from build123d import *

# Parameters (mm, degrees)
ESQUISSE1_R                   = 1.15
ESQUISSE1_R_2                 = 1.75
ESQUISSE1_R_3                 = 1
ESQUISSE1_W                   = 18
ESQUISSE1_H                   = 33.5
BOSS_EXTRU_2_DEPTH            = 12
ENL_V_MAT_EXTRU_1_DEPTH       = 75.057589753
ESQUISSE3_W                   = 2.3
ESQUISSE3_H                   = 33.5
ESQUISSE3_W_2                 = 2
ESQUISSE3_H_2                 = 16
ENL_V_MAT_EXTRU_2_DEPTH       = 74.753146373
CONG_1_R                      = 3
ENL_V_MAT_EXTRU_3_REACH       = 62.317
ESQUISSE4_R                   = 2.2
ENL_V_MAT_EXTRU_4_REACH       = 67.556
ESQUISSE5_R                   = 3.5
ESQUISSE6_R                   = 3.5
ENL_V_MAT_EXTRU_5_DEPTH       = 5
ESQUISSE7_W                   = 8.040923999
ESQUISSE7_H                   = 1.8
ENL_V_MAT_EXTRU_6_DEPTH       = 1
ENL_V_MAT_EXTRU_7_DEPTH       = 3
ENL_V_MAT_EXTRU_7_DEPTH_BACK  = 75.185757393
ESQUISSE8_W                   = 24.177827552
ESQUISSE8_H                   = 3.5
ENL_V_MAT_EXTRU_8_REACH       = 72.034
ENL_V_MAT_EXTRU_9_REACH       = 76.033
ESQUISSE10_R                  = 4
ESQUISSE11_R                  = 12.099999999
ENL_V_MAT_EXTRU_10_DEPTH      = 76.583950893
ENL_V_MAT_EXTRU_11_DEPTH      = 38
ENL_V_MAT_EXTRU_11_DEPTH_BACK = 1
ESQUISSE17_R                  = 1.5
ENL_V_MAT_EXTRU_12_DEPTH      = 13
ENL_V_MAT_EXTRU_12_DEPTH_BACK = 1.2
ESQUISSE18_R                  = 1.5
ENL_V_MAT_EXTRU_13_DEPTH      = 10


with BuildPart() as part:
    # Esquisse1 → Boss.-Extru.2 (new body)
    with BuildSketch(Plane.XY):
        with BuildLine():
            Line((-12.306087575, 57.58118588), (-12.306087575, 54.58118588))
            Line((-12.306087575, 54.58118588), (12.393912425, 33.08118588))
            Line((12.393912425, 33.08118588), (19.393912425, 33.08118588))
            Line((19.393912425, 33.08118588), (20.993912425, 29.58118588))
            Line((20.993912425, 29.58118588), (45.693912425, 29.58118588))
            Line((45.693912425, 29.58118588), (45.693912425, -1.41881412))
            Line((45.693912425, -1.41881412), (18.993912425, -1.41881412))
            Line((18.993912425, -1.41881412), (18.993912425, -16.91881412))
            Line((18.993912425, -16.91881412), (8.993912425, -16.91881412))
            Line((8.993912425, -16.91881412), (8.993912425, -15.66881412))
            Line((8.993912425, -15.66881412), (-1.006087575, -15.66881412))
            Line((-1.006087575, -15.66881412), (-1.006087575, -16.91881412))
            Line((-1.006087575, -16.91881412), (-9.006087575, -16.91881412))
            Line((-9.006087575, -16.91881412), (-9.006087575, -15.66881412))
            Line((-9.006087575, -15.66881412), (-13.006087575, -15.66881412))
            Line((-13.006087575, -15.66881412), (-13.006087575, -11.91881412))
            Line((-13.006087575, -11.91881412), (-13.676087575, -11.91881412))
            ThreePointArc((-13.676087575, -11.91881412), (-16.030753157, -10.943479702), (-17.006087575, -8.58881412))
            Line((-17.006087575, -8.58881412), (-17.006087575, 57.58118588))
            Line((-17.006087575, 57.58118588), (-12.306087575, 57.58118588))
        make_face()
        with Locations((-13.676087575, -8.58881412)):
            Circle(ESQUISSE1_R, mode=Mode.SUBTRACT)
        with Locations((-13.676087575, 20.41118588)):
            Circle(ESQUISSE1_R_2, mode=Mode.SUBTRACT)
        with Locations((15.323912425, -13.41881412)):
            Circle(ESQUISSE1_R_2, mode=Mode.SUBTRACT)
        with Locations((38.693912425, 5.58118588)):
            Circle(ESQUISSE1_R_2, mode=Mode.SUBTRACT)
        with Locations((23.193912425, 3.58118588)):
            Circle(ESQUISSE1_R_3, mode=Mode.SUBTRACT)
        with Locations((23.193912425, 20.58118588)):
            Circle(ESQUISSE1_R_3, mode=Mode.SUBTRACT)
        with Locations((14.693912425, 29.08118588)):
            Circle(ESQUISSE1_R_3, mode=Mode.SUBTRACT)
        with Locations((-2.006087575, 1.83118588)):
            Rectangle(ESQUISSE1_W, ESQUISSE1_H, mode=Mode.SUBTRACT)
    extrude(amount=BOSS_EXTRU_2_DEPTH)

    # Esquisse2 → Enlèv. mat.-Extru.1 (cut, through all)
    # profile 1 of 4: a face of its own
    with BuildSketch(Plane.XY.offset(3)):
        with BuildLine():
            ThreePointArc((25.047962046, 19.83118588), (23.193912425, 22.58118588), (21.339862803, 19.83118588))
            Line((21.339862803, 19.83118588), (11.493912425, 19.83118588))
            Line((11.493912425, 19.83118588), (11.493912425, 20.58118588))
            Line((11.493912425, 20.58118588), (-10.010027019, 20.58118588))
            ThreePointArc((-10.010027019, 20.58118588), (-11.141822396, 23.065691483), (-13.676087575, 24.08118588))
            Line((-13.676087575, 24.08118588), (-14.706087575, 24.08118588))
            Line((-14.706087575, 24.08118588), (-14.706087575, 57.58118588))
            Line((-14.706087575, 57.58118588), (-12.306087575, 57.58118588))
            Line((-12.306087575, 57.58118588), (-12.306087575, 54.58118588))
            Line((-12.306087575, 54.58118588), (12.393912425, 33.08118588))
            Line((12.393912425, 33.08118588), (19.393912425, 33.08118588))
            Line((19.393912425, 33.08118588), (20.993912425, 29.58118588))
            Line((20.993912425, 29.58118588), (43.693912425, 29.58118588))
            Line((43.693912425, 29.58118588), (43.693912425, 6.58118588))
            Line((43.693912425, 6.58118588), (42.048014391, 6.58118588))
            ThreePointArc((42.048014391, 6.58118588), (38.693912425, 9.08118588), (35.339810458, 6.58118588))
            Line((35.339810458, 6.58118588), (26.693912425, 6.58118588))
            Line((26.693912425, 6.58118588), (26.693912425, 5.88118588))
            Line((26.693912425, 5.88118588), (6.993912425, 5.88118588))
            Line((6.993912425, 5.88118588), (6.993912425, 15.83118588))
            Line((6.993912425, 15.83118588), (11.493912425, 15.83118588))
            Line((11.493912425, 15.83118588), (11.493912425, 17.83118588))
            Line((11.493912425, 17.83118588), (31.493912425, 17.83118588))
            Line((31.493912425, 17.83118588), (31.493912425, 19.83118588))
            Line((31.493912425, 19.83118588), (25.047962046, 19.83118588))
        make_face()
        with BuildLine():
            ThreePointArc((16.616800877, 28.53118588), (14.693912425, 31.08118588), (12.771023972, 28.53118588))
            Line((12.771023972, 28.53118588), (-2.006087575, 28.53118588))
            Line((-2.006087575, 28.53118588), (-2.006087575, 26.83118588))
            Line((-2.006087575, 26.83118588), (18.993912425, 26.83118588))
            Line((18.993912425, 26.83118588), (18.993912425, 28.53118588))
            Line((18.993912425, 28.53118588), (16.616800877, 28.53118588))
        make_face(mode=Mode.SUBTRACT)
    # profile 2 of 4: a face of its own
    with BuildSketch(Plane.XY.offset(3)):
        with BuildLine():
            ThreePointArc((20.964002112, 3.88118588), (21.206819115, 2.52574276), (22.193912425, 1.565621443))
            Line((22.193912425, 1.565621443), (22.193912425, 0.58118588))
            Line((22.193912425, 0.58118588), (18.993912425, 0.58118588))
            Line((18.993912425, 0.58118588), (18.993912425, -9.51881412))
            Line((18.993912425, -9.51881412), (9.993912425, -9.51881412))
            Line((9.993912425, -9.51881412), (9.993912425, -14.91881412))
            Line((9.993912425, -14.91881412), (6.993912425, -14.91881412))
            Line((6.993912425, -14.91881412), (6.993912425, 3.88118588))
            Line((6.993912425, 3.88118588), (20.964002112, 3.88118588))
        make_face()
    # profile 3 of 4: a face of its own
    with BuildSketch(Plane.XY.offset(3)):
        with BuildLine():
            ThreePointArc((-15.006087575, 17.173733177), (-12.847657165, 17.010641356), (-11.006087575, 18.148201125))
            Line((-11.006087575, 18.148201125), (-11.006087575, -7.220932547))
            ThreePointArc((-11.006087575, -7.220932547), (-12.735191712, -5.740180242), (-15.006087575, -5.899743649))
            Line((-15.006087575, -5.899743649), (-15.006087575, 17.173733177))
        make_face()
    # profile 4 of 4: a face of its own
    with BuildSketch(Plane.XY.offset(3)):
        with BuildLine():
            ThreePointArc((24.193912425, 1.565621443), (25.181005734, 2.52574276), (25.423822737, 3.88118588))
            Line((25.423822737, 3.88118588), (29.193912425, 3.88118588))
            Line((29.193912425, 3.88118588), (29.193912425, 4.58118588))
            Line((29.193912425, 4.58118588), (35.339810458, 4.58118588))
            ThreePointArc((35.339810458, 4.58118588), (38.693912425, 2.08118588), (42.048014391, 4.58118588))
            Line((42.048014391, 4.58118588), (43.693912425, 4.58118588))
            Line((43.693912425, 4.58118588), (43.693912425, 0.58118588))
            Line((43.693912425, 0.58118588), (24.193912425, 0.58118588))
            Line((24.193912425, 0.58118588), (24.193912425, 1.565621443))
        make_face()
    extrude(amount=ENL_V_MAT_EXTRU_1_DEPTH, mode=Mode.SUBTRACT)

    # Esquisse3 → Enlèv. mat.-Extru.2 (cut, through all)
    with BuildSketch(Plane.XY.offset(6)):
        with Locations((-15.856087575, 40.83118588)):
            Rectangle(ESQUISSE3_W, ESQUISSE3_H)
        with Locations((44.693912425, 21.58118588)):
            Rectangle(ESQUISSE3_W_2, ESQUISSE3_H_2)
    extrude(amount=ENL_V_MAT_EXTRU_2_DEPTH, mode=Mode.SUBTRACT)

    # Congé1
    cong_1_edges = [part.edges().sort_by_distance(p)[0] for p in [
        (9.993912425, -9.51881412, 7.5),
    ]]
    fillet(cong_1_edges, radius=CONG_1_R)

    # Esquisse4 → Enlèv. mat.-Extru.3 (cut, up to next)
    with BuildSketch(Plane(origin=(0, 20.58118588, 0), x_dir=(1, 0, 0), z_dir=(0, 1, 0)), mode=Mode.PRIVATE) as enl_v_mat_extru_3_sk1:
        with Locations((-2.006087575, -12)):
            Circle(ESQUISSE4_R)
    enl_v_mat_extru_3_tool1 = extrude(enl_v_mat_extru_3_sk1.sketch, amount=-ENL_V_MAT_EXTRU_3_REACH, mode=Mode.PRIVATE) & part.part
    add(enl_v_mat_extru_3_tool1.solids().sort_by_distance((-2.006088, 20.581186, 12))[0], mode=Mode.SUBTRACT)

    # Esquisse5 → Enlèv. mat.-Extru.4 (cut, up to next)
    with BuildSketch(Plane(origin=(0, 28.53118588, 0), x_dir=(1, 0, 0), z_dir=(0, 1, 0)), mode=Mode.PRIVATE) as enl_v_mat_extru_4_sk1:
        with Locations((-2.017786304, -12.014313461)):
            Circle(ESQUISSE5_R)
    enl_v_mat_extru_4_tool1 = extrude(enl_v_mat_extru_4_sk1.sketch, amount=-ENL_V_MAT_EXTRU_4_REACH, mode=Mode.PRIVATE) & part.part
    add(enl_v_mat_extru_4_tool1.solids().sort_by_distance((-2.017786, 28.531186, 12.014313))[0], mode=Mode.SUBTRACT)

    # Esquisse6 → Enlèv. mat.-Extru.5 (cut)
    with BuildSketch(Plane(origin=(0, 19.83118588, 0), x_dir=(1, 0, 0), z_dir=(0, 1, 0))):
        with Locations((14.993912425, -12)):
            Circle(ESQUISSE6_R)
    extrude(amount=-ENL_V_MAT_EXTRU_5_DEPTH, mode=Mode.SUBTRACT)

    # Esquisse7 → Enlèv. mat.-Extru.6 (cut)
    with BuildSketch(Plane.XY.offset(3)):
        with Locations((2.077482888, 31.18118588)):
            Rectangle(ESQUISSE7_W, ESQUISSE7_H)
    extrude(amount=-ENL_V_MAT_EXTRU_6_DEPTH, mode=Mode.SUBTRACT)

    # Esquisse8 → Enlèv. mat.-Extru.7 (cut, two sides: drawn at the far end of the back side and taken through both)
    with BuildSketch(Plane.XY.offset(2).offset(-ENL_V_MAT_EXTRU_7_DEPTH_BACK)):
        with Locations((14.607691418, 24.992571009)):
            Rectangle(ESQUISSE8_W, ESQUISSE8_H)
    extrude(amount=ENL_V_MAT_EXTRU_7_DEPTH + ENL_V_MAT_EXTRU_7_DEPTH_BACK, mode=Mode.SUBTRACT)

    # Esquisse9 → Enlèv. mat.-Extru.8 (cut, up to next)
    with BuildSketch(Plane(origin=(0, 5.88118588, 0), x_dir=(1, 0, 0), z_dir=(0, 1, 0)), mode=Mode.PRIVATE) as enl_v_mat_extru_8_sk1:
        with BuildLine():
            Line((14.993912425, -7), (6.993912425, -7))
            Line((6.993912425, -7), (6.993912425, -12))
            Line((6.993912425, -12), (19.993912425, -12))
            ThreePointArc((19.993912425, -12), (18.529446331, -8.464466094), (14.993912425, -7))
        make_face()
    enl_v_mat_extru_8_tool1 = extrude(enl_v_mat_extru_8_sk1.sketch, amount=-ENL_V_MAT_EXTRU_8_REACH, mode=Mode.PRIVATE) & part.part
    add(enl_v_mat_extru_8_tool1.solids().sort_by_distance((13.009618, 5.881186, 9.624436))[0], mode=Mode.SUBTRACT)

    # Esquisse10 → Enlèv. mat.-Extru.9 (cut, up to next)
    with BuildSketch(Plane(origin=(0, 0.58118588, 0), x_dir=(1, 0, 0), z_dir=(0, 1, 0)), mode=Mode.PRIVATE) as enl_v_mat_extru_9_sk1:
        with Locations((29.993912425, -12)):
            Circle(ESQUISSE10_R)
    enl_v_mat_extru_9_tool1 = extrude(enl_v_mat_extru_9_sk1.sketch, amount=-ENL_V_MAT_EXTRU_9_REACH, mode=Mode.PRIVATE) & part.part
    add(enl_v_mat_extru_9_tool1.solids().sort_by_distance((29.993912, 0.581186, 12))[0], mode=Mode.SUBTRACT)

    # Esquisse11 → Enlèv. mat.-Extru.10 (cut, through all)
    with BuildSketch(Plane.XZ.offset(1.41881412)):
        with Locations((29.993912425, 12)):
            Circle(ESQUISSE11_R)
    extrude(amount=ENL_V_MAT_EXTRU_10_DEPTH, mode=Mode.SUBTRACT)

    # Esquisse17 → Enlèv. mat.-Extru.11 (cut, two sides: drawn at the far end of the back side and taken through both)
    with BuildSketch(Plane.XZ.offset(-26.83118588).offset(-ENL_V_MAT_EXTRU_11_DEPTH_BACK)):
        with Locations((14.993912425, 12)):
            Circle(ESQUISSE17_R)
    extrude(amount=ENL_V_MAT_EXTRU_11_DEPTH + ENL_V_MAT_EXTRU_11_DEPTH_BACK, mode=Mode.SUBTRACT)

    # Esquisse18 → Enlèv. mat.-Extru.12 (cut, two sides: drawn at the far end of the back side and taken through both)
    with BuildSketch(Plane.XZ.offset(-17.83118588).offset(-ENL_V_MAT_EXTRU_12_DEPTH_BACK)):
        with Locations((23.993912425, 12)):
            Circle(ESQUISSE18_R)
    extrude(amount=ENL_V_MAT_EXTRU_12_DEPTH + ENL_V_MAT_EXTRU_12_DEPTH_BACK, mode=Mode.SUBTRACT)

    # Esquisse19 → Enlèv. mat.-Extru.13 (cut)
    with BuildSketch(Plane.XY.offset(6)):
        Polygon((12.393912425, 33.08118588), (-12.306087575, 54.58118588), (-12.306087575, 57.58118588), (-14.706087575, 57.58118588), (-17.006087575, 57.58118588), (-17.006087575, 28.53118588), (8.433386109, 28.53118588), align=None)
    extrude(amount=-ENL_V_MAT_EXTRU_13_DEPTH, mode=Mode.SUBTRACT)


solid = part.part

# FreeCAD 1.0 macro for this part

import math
import FreeCAD as App
import Part
import Sketcher
Q = App.Units.Quantity


def edges_at(feature, points):
    """Names of the edges that pass closest to the given points."""
    edges = feature.Shape.Edges
    near = lambda p: min(range(len(edges)), key=lambda i: edges[i].distToShape(Part.Vertex(*p))[0])
    return sorted({f"Edge{near(p) + 1}" for p in points})

doc = App.newDocument("Part")
params = doc.addObject("Spreadsheet::Sheet", "Params")
for row, (alias, value) in enumerate([
    ("sketch1_diameter", "2 mm"),
    ("sketch1_diameter2", "3.5 mm"),
    ("sketch1_diameter3", "2.3 mm"),
    ("sketch1_width", "4 mm"),
    ("sketch1_width2", "8 mm"),
    ("pad1_length", "12 mm"),
    ("sketch2_radius", "2 mm"),
    ("sketch2_radius2", "2 mm"),
    ("sketch2_radius3", "3 mm"),
    ("sketch2_radius4", "3.5 mm"),
    ("sketch2_radius5", "3.5 mm"),
    ("pocket1_length", "75.05759 mm"),
    ("sketch3_width", "2 mm"),
    ("sketch3_height", "16 mm"),
    ("sketch3_width2", "2.3 mm"),
    ("sketch3_height2", "33.5 mm"),
    ("fillet_radius", "3 mm"),
    ("sketch4_diameter", "4.4 mm"),
    ("sketch5_diameter", "7 mm"),
    ("pocket4_length", "1.7 mm"),
    ("sketch6_diameter", "7 mm"),
    ("pocket5_length", "5 mm"),
    ("sketch7_height", "1.8 mm"),
    ("pocket6_length", "1 mm"),
    ("sketch8_height", "3.5 mm"),
    ("sketch9_radius", "5 mm"),
    ("sketch9_width", "8 mm"),
    ("sketch10_diameter", "8 mm"),
    ("sketch11_diameter", "24.2 mm"),
    ("sketch12_diameter", "3 mm"),
    ("pocket11_length", "38 mm"),
    ("pocket11_length2", "1 mm"),
    ("sketch13_diameter", "3 mm"),
    ("pocket12_length", "13 mm"),
    ("pocket12_length2", "1.2 mm"),
    ("sketch14_height", "3 mm"),
    ("sketch14_width", "4.7 mm"),
    ("sketch14_height2", "29.05 mm"),
    ("pocket13_length", "10 mm"),
], start=1):
    params.set(f"A{row}", alias)
    params.set(f"B{row}", "=" + value)
    params.setAlias(f"B{row}", alias)

body = doc.addObject("PartDesign::Body", "Body")

# Sketch on XY plane
sketch1 = body.newObject("Sketcher::SketchObject", "Sketch")
sketch1.AttachmentSupport = (doc.getObject("XY_Plane"), [""])
sketch1.MapMode = "FlatFace"
sketch1.addGeometry([
    Part.LineSegment(App.Vector(-12.3, 54.6, 0), App.Vector(-12.3, 57.6, 0)),  # 0
    Part.LineSegment(App.Vector(-12.3, 57.6, 0), App.Vector(-17, 57.6, 0)),  # 1
    Part.LineSegment(App.Vector(-17, 57.6, 0), App.Vector(-17, -8.6, 0)),  # 2
    Part.ArcOfCircle(Part.Circle(App.Vector(-13.7, -8.6, 0), App.Vector(0, 0, 1), 3.3), math.radians(180), math.radians(270)),  # 3
    Part.LineSegment(App.Vector(-13.7, -11.9, 0), App.Vector(-13, -11.9, 0)),  # 4
    Part.LineSegment(App.Vector(-13, -11.9, 0), App.Vector(-13, -15.7, 0)),  # 5
    Part.LineSegment(App.Vector(-13, -15.7, 0), App.Vector(-9, -15.7, 0)),  # 6
    Part.LineSegment(App.Vector(-9, -15.7, 0), App.Vector(-9, -16.9, 0)),  # 7
    Part.LineSegment(App.Vector(-9, -16.9, 0), App.Vector(-1, -16.9, 0)),  # 8
    Part.LineSegment(App.Vector(-1, -16.9, 0), App.Vector(-1, -15.7, 0)),  # 9
    Part.LineSegment(App.Vector(-1, -15.7, 0), App.Vector(9, -15.7, 0)),  # 10
    Part.LineSegment(App.Vector(9, -15.7, 0), App.Vector(9, -16.9, 0)),  # 11
    Part.LineSegment(App.Vector(9, -16.9, 0), App.Vector(19, -16.9, 0)),  # 12
    Part.LineSegment(App.Vector(19, -16.9, 0), App.Vector(19, -1.4, 0)),  # 13
    Part.LineSegment(App.Vector(19, -1.4, 0), App.Vector(45.7, -1.4, 0)),  # 14
    Part.LineSegment(App.Vector(45.7, -1.4, 0), App.Vector(45.7, 29.6, 0)),  # 15
    Part.LineSegment(App.Vector(45.7, 29.6, 0), App.Vector(21, 29.6, 0)),  # 16
    Part.LineSegment(App.Vector(21, 29.6, 0), App.Vector(19.4, 33.1, 0)),  # 17
    Part.LineSegment(App.Vector(19.4, 33.1, 0), App.Vector(12.4, 33.1, 0)),  # 18
    Part.LineSegment(App.Vector(12.4, 33.1, 0), App.Vector(-12.3, 54.6, 0)),  # 19
    Part.Circle(App.Vector(15.3, -13.4, 0), App.Vector(0, 0, 1), 1.8),  # 20
    Part.Circle(App.Vector(38.7, 5.6, 0), App.Vector(0, 0, 1), 1.8),  # 21
    Part.Circle(App.Vector(23.2, 3.6, 0), App.Vector(0, 0, 1), 1),  # 22
    Part.Circle(App.Vector(-13.7, -8.6, 0), App.Vector(0, 0, 1), 1.1),  # 23
    Part.LineSegment(App.Vector(-11, -14.9, 0), App.Vector(-11, 18.6, 0)),  # 24
    Part.LineSegment(App.Vector(-11, 18.6, 0), App.Vector(7, 18.6, 0)),  # 25
    Part.LineSegment(App.Vector(7, 18.6, 0), App.Vector(7, -14.9, 0)),  # 26
    Part.LineSegment(App.Vector(7, -14.9, 0), App.Vector(-11, -14.9, 0)),  # 27
    Part.Circle(App.Vector(23.2, 20.6, 0), App.Vector(0, 0, 1), 1),  # 28
    Part.Circle(App.Vector(14.7, 29.1, 0), App.Vector(0, 0, 1), 1),  # 29
    Part.Circle(App.Vector(-13.7, 20.4, 0), App.Vector(0, 0, 1), 1.8),  # 30
], False)
sketch1.addConstraint([
    Sketcher.Constraint("Coincident", 0, 2, 1, 1),
    Sketcher.Constraint("Coincident", 1, 2, 2, 1),
    Sketcher.Constraint("Tangent", 2, 2, 3, 1),
    Sketcher.Constraint("Tangent", 3, 2, 4, 1),
    Sketcher.Constraint("Coincident", 4, 2, 5, 1),
    Sketcher.Constraint("Coincident", 5, 2, 6, 1),
    Sketcher.Constraint("Coincident", 6, 2, 7, 1),
    Sketcher.Constraint("Coincident", 7, 2, 8, 1),
    Sketcher.Constraint("Coincident", 8, 2, 9, 1),
    Sketcher.Constraint("Coincident", 9, 2, 10, 1),
    Sketcher.Constraint("Coincident", 10, 2, 11, 1),
    Sketcher.Constraint("Coincident", 11, 2, 12, 1),
    Sketcher.Constraint("Coincident", 12, 2, 13, 1),
    Sketcher.Constraint("Coincident", 13, 2, 14, 1),
    Sketcher.Constraint("Coincident", 14, 2, 15, 1),
    Sketcher.Constraint("Coincident", 15, 2, 16, 1),
    Sketcher.Constraint("Coincident", 16, 2, 17, 1),
    Sketcher.Constraint("Coincident", 17, 2, 18, 1),
    Sketcher.Constraint("Coincident", 18, 2, 19, 1),
    Sketcher.Constraint("Coincident", 19, 2, 0, 1),
    Sketcher.Constraint("Coincident", 24, 2, 25, 1),
    Sketcher.Constraint("Coincident", 25, 2, 26, 1),
    Sketcher.Constraint("Coincident", 26, 2, 27, 1),
    Sketcher.Constraint("Coincident", 27, 2, 24, 1),
    Sketcher.Constraint("Vertical", 0),
    Sketcher.Constraint("Horizontal", 1),
    Sketcher.Constraint("Vertical", 2),
    Sketcher.Constraint("Horizontal", 4),
    Sketcher.Constraint("Vertical", 5),
    Sketcher.Constraint("Horizontal", 6),
    Sketcher.Constraint("Vertical", 7),
    Sketcher.Constraint("Horizontal", 8),
    Sketcher.Constraint("Vertical", 9),
    Sketcher.Constraint("Horizontal", 10),
    Sketcher.Constraint("Vertical", 11),
    Sketcher.Constraint("Horizontal", 12),
    Sketcher.Constraint("Vertical", 13),
    Sketcher.Constraint("Horizontal", 14),
    Sketcher.Constraint("Vertical", 15),
    Sketcher.Constraint("Horizontal", 16),
    Sketcher.Constraint("Horizontal", 18),
    Sketcher.Constraint("Vertical", 24),
    Sketcher.Constraint("Horizontal", 25),
    Sketcher.Constraint("Vertical", 26),
    Sketcher.Constraint("Horizontal", 27),
    Sketcher.Constraint("Coincident", 23, 3, 3, 3),
    Sketcher.Constraint("Equal", 20, 21),
    Sketcher.Constraint("Equal", 22, 28),
    Sketcher.Constraint("Equal", 28, 29),
    Sketcher.Constraint("Equal", 21, 30),
    Sketcher.Constraint("Horizontal", 6, 2, 9, 2),
    Sketcher.Constraint("Horizontal", 8, 2, 11, 2),
    Sketcher.Constraint("Vertical", 22, 3, 28, 3),
    Sketcher.Constraint("Vertical", 23, 3, 30, 3),
    Sketcher.Constraint("Equal", 10, 12),
    Sketcher.Constraint("Diameter", 22, Q("2 mm")),
    Sketcher.Constraint("Diameter", 20, Q("3.5 mm")),
    Sketcher.Constraint("Diameter", 23, Q("2.3 mm")),
    Sketcher.Constraint("DistanceX", 6, 1, 6, 2, Q("4 mm")),
    Sketcher.Constraint("DistanceX", 8, 1, 8, 2, Q("8 mm")),
    Sketcher.Constraint("DistanceX", 10, 1, 10, 2, Q("10 mm")),
    Sketcher.Constraint("DistanceX", 18, 2, 18, 1, Q("7 mm")),
    Sketcher.Constraint("DistanceX", 25, 1, 25, 2, Q("18 mm")),
    Sketcher.Constraint("DistanceY", 0, 1, 0, 2, Q("3 mm")),
    Sketcher.Constraint("DistanceY", 15, 1, 15, 2, Q("31 mm")),
    Sketcher.Constraint("Radius", 3, Q("3.33 mm")),
    Sketcher.Constraint("DistanceX", 1, 2, 1, 1, Q("4.7 mm")),
    Sketcher.Constraint("DistanceX", 14, 1, 14, 2, Q("26.7 mm")),
    Sketcher.Constraint("DistanceX", 16, 2, 16, 1, Q("24.7 mm")),
    Sketcher.Constraint("DistanceY", 13, 1, 13, 2, Q("15.5 mm")),
    Sketcher.Constraint("DistanceY", 24, 1, 24, 2, Q("33.5 mm")),
    Sketcher.Constraint("DistanceX", 3, 3, 20, 3, Q("29 mm")),
    Sketcher.Constraint("DistanceY", 20, 3, 21, 3, Q("19 mm")),
    Sketcher.Constraint("DistanceY", 22, 3, 21, 3, Q("2 mm")),
    Sketcher.Constraint("DistanceY", 22, 3, 28, 3, Q("17 mm")),
    Sketcher.Constraint("DistanceX", 29, 3, 21, 3, Q("24 mm")),
    Sketcher.Constraint("DistanceY", 23, 3, 30, 3, Q("29 mm")),
    Sketcher.Constraint("DistanceX", 0, 2, 29, 3, Q("27 mm")),
    Sketcher.Constraint("DistanceY", 28, 3, 0, 2, Q("37 mm")),
    Sketcher.Constraint("DistanceX", 2, 2, 4, 2, Q("4 mm")),
    Sketcher.Constraint("DistanceY", 7, 2, 4, 2, Q("5 mm")),
    Sketcher.Constraint("DistanceY", 13, 2, 22, 3, Q("5 mm")),
    Sketcher.Constraint("DistanceY", 29, 3, 17, 2, Q("4 mm")),
    Sketcher.Constraint("DistanceY", 25, 2, 28, 3, Q("2 mm")),
    Sketcher.Constraint("DistanceX", 25, 2, 16, 2, Q("14 mm")),
    Sketcher.Constraint("DistanceY", 5, 2, 5, 1, Q("3.75 mm")),
    Sketcher.Constraint("DistanceX", 22, 3, 21, 3, Q("15.5 mm")),
    Sketcher.Constraint("DistanceY", 28, 3, 29, 3, Q("8.5 mm")),
    Sketcher.Constraint("DistanceX", 17, 2, 16, 2, Q("1.6 mm")),
    Sketcher.Constraint("DistanceX", 3, 3, -1, 1, Q("13.676088 mm")),
    Sketcher.Constraint("DistanceY", 3, 3, -1, 1, Q("8.588814 mm")),
])
sketch1.setExpression("Constraints[55]", "Params.sketch1_diameter")
sketch1.setExpression("Constraints[56]", "Params.sketch1_diameter2")
sketch1.setExpression("Constraints[57]", "Params.sketch1_diameter3")
sketch1.setExpression("Constraints[58]", "Params.sketch1_width")
sketch1.setExpression("Constraints[59]", "Params.sketch1_width2")
pad1 = body.newObject("PartDesign::Pad", "Pad")
pad1.Profile = sketch1
pad1.setExpression("Length", "Params.pad1_length")

# Sketch on XY plane
sketch2 = body.newObject("Sketcher::SketchObject", "Sketch001")
sketch2.AttachmentSupport = (doc.getObject("XY_Plane"), [""])
sketch2.MapMode = "FlatFace"
sketch2.AttachmentOffset = App.Placement(App.Vector(0, 0, 3), App.Rotation())
sketch2.addGeometry([
    Part.ArcOfCircle(Part.Circle(App.Vector(23.193912, 20.581186, 0), App.Vector(0, 0, 1), 2), math.radians(-22.024313), math.radians(202.024313)),  # 0
    Part.LineSegment(App.Vector(25.047962, 19.831186, 0), App.Vector(31.493912, 19.831186, 0)),  # 1
    Part.LineSegment(App.Vector(31.493912, 19.831186, 0), App.Vector(31.493912, 17.831186, 0)),  # 2
    Part.LineSegment(App.Vector(31.493912, 17.831186, 0), App.Vector(11.493912, 17.831186, 0)),  # 3
    Part.LineSegment(App.Vector(11.493912, 17.831186, 0), App.Vector(11.493912, 15.831186, 0)),  # 4
    Part.LineSegment(App.Vector(11.493912, 15.831186, 0), App.Vector(6.993912, 15.831186, 0)),  # 5
    Part.LineSegment(App.Vector(6.993912, 15.831186, 0), App.Vector(6.993912, 5.881186, 0)),  # 6
    Part.LineSegment(App.Vector(6.993912, 5.881186, 0), App.Vector(26.693912, 5.881186, 0)),  # 7
    Part.LineSegment(App.Vector(26.693912, 5.881186, 0), App.Vector(26.693912, 6.581186, 0)),  # 8
    Part.LineSegment(App.Vector(26.693912, 6.581186, 0), App.Vector(35.33981, 6.581186, 0)),  # 9
    Part.ArcOfCircle(Part.Circle(App.Vector(38.693912, 5.581186, 0), App.Vector(0, 0, 1), 3.5), math.radians(16.60155), math.radians(163.39845)),  # 10
    Part.LineSegment(App.Vector(42.048014, 6.581186, 0), App.Vector(43.693912, 6.581186, 0)),  # 11
    Part.LineSegment(App.Vector(43.693912, 6.581186, 0), App.Vector(43.693912, 29.581186, 0)),  # 12
    Part.LineSegment(App.Vector(43.693912, 29.581186, 0), App.Vector(20.993912, 29.581186, 0)),  # 13
    Part.LineSegment(App.Vector(20.993912, 29.581186, 0), App.Vector(19.393912, 33.081186, 0)),  # 14
    Part.LineSegment(App.Vector(19.393912, 33.081186, 0), App.Vector(12.393912, 33.081186, 0)),  # 15
    Part.LineSegment(App.Vector(12.393912, 33.081186, 0), App.Vector(-12.306088, 54.581186, 0)),  # 16
    Part.LineSegment(App.Vector(-12.306088, 54.581186, 0), App.Vector(-12.306088, 57.581186, 0)),  # 17
    Part.LineSegment(App.Vector(-12.306088, 57.581186, 0), App.Vector(-14.706088, 57.581186, 0)),  # 18
    Part.LineSegment(App.Vector(-14.706088, 57.581186, 0), App.Vector(-14.706088, 24.081186, 0)),  # 19
    Part.LineSegment(App.Vector(-14.706088, 24.081186, 0), App.Vector(-13.676088, 24.081186, 0)),  # 20
    Part.ArcOfCircle(Part.Circle(App.Vector(-13.676088, 20.411186, 0), App.Vector(0, 0, 1), 3.67), math.radians(2.654978), math.radians(90)),  # 21
    Part.LineSegment(App.Vector(-10.010027, 20.581186, 0), App.Vector(11.493912, 20.581186, 0)),  # 22
    Part.LineSegment(App.Vector(11.493912, 20.581186, 0), App.Vector(11.493912, 19.831186, 0)),  # 23
    Part.LineSegment(App.Vector(11.493912, 19.831186, 0), App.Vector(21.339863, 19.831186, 0)),  # 24
    Part.LineSegment(App.Vector(16.616801, 28.531186, 0), App.Vector(18.993912, 28.531186, 0)),  # 25
    Part.LineSegment(App.Vector(18.993912, 28.531186, 0), App.Vector(18.993912, 26.831186, 0)),  # 26
    Part.LineSegment(App.Vector(18.993912, 26.831186, 0), App.Vector(-2.006088, 26.831186, 0)),  # 27
    Part.LineSegment(App.Vector(-2.006088, 26.831186, 0), App.Vector(-2.006088, 28.531186, 0)),  # 28
    Part.LineSegment(App.Vector(-2.006088, 28.531186, 0), App.Vector(12.771024, 28.531186, 0)),  # 29
    Part.ArcOfCircle(Part.Circle(App.Vector(14.693912, 29.081186, 0), App.Vector(0, 0, 1), 2), math.radians(-15.962014), math.radians(195.962014)),  # 30
    Part.ArcOfCircle(Part.Circle(App.Vector(23.193912, 3.581186, 0), App.Vector(0, 0, 1), 2.25), math.radians(172.337744), math.radians(243.6122)),  # 31
    Part.LineSegment(App.Vector(20.964002, 3.881186, 0), App.Vector(6.993912, 3.881186, 0)),  # 32
    Part.LineSegment(App.Vector(6.993912, 3.881186, 0), App.Vector(6.993912, -14.918814, 0)),  # 33
    Part.LineSegment(App.Vector(6.993912, -14.918814, 0), App.Vector(9.993912, -14.918814, 0)),  # 34
    Part.LineSegment(App.Vector(9.993912, -14.918814, 0), App.Vector(9.993912, -9.518814, 0)),  # 35
    Part.LineSegment(App.Vector(9.993912, -9.518814, 0), App.Vector(18.993912, -9.518814, 0)),  # 36
    Part.LineSegment(App.Vector(18.993912, -9.518814, 0), App.Vector(18.993912, 0.581186, 0)),  # 37
    Part.LineSegment(App.Vector(18.993912, 0.581186, 0), App.Vector(22.193912, 0.581186, 0)),  # 38
    Part.LineSegment(App.Vector(22.193912, 0.581186, 0), App.Vector(22.193912, 1.565621, 0)),  # 39
    Part.ArcOfCircle(Part.Circle(App.Vector(-13.676088, 20.411186, 0), App.Vector(0, 0, 1), 3.5), math.radians(-112.333683), math.radians(-40.283271)),  # 40
    Part.LineSegment(App.Vector(-15.006088, 17.173733, 0), App.Vector(-15.006088, -5.899744, 0)),  # 41
    Part.ArcOfCircle(Part.Circle(App.Vector(-13.676088, -8.588814, 0), App.Vector(0, 0, 1), 3), math.radians(27.126753), math.radians(116.316755)),  # 42
    Part.LineSegment(App.Vector(-11.006088, -7.220933, 0), App.Vector(-11.006088, 18.148201, 0)),  # 43
    Part.ArcOfCircle(Part.Circle(App.Vector(23.193912, 3.581186, 0), App.Vector(0, 0, 1), 2.25), math.radians(-63.6122), math.radians(7.662256)),  # 44
    Part.LineSegment(App.Vector(24.193912, 1.565621, 0), App.Vector(24.193912, 0.581186, 0)),  # 45
    Part.LineSegment(App.Vector(24.193912, 0.581186, 0), App.Vector(43.693912, 0.581186, 0)),  # 46
    Part.LineSegment(App.Vector(43.693912, 0.581186, 0), App.Vector(43.693912, 4.581186, 0)),  # 47
    Part.LineSegment(App.Vector(43.693912, 4.581186, 0), App.Vector(42.048014, 4.581186, 0)),  # 48
    Part.ArcOfCircle(Part.Circle(App.Vector(38.693912, 5.581186, 0), App.Vector(0, 0, 1), 3.5), math.radians(-163.39845), math.radians(-16.60155)),  # 49
    Part.LineSegment(App.Vector(35.33981, 4.581186, 0), App.Vector(29.193912, 4.581186, 0)),  # 50
    Part.LineSegment(App.Vector(29.193912, 4.581186, 0), App.Vector(29.193912, 3.881186, 0)),  # 51
    Part.LineSegment(App.Vector(29.193912, 3.881186, 0), App.Vector(25.423823, 3.881186, 0)),  # 52
], False)
sketch2.addConstraint([
    Sketcher.Constraint("Coincident", 0, 1, 1, 1),
    Sketcher.Constraint("Coincident", 1, 2, 2, 1),
    Sketcher.Constraint("Coincident", 2, 2, 3, 1),
    Sketcher.Constraint("Coincident", 3, 2, 4, 1),
    Sketcher.Constraint("Coincident", 4, 2, 5, 1),
    Sketcher.Constraint("Coincident", 5, 2, 6, 1),
    Sketcher.Constraint("Coincident", 6, 2, 7, 1),
    Sketcher.Constraint("Coincident", 7, 2, 8, 1),
    Sketcher.Constraint("Coincident", 8, 2, 9, 1),
    Sketcher.Constraint("Coincident", 9, 2, 10, 2),
    Sketcher.Constraint("Coincident", 10, 1, 11, 1),
    Sketcher.Constraint("Coincident", 11, 2, 12, 1),
    Sketcher.Constraint("Coincident", 12, 2, 13, 1),
    Sketcher.Constraint("Coincident", 13, 2, 14, 1),
    Sketcher.Constraint("Coincident", 14, 2, 15, 1),
    Sketcher.Constraint("Coincident", 15, 2, 16, 1),
    Sketcher.Constraint("Coincident", 16, 2, 17, 1),
    Sketcher.Constraint("Coincident", 17, 2, 18, 1),
    Sketcher.Constraint("Coincident", 18, 2, 19, 1),
    Sketcher.Constraint("Coincident", 19, 2, 20, 1),
    Sketcher.Constraint("Coincident", 20, 2, 21, 2),
    Sketcher.Constraint("Coincident", 21, 1, 22, 1),
    Sketcher.Constraint("Coincident", 22, 2, 23, 1),
    Sketcher.Constraint("Coincident", 23, 2, 24, 1),
    Sketcher.Constraint("Coincident", 24, 2, 0, 2),
    Sketcher.Constraint("Coincident", 25, 2, 26, 1),
    Sketcher.Constraint("Coincident", 26, 2, 27, 1),
    Sketcher.Constraint("Coincident", 27, 2, 28, 1),
    Sketcher.Constraint("Coincident", 28, 2, 29, 1),
    Sketcher.Constraint("Coincident", 29, 2, 30, 2),
    Sketcher.Constraint("Coincident", 30, 1, 25, 1),
    Sketcher.Constraint("Coincident", 31, 1, 32, 1),
    Sketcher.Constraint("Coincident", 32, 2, 33, 1),
    Sketcher.Constraint("Coincident", 33, 2, 34, 1),
    Sketcher.Constraint("Coincident", 34, 2, 35, 1),
    Sketcher.Constraint("Coincident", 35, 2, 36, 1),
    Sketcher.Constraint("Coincident", 36, 2, 37, 1),
    Sketcher.Constraint("Coincident", 37, 2, 38, 1),
    Sketcher.Constraint("Coincident", 38, 2, 39, 1),
    Sketcher.Constraint("Coincident", 39, 2, 31, 2),
    Sketcher.Constraint("Coincident", 40, 1, 41, 1),
    Sketcher.Constraint("Coincident", 41, 2, 42, 2),
    Sketcher.Constraint("Coincident", 42, 1, 43, 1),
    Sketcher.Constraint("Coincident", 43, 2, 40, 2),
    Sketcher.Constraint("Coincident", 44, 1, 45, 1),
    Sketcher.Constraint("Coincident", 45, 2, 46, 1),
    Sketcher.Constraint("Coincident", 46, 2, 47, 1),
    Sketcher.Constraint("Coincident", 47, 2, 48, 1),
    Sketcher.Constraint("Coincident", 48, 2, 49, 2),
    Sketcher.Constraint("Coincident", 49, 1, 50, 1),
    Sketcher.Constraint("Coincident", 50, 2, 51, 1),
    Sketcher.Constraint("Coincident", 51, 2, 52, 1),
    Sketcher.Constraint("Coincident", 52, 2, 44, 2),
    Sketcher.Constraint("Horizontal", 1),
    Sketcher.Constraint("Vertical", 2),
    Sketcher.Constraint("Horizontal", 3),
    Sketcher.Constraint("Vertical", 4),
    Sketcher.Constraint("Horizontal", 5),
    Sketcher.Constraint("Vertical", 6),
    Sketcher.Constraint("Horizontal", 7),
    Sketcher.Constraint("Vertical", 8),
    Sketcher.Constraint("Horizontal", 9),
    Sketcher.Constraint("Horizontal", 11),
    Sketcher.Constraint("Vertical", 12),
    Sketcher.Constraint("Horizontal", 13),
    Sketcher.Constraint("Horizontal", 15),
    Sketcher.Constraint("Vertical", 17),
    Sketcher.Constraint("Horizontal", 18),
    Sketcher.Constraint("Vertical", 19),
    Sketcher.Constraint("Horizontal", 20),
    Sketcher.Constraint("Horizontal", 22),
    Sketcher.Constraint("Vertical", 23),
    Sketcher.Constraint("Horizontal", 24),
    Sketcher.Constraint("Horizontal", 25),
    Sketcher.Constraint("Vertical", 26),
    Sketcher.Constraint("Horizontal", 27),
    Sketcher.Constraint("Vertical", 28),
    Sketcher.Constraint("Horizontal", 29),
    Sketcher.Constraint("Horizontal", 32),
    Sketcher.Constraint("Vertical", 33),
    Sketcher.Constraint("Horizontal", 34),
    Sketcher.Constraint("Vertical", 35),
    Sketcher.Constraint("Horizontal", 36),
    Sketcher.Constraint("Vertical", 37),
    Sketcher.Constraint("Horizontal", 38),
    Sketcher.Constraint("Vertical", 39),
    Sketcher.Constraint("Vertical", 41),
    Sketcher.Constraint("Vertical", 43),
    Sketcher.Constraint("Vertical", 45),
    Sketcher.Constraint("Horizontal", 46),
    Sketcher.Constraint("Vertical", 47),
    Sketcher.Constraint("Horizontal", 48),
    Sketcher.Constraint("Horizontal", 50),
    Sketcher.Constraint("Vertical", 51),
    Sketcher.Constraint("Horizontal", 52),
    Sketcher.Constraint("Coincident", 40, 3, 21, 3),
    Sketcher.Constraint("Coincident", 44, 3, 31, 3),
    Sketcher.Constraint("Coincident", 49, 3, 10, 3),
    Sketcher.Constraint("Radius", 0, Q("2 mm")),
    Sketcher.Constraint("Radius", 30, Q("2 mm")),
    Sketcher.Constraint("Radius", 42, Q("3 mm")),
    Sketcher.Constraint("Radius", 10, Q("3.5 mm")),
    Sketcher.Constraint("Radius", 40, Q("3.5 mm")),
    Sketcher.Constraint("Radius", 49, Q("3.5 mm")),
    Sketcher.Constraint("DistanceX", 3, 2, 3, 1, Q("20 mm")),
    Sketcher.Constraint("DistanceX", 15, 2, 15, 1, Q("7 mm")),
    Sketcher.Constraint("DistanceX", 27, 2, 27, 1, Q("21 mm")),
    Sketcher.Constraint("DistanceX", 34, 1, 34, 2, Q("3 mm")),
    Sketcher.Constraint("DistanceX", 36, 1, 36, 2, Q("9 mm")),
    Sketcher.Constraint("DistanceY", 2, 2, 2, 1, Q("2 mm")),
    Sketcher.Constraint("DistanceY", 4, 2, 4, 1, Q("2 mm")),
    Sketcher.Constraint("DistanceY", 12, 1, 12, 2, Q("23 mm")),
    Sketcher.Constraint("DistanceY", 17, 1, 17, 2, Q("3 mm")),
    Sketcher.Constraint("DistanceY", 47, 1, 47, 2, Q("4 mm")),
    Sketcher.Constraint("Radius", 21, Q("3.67 mm")),
    Sketcher.Constraint("Radius", 31, Q("2.25 mm")),
    Sketcher.Constraint("Radius", 44, Q("2.25 mm")),
    Sketcher.Constraint("DistanceX", 5, 2, 5, 1, Q("4.5 mm")),
    Sketcher.Constraint("DistanceX", 7, 1, 7, 2, Q("19.7 mm")),
    Sketcher.Constraint("DistanceX", 13, 2, 13, 1, Q("22.7 mm")),
    Sketcher.Constraint("DistanceX", 18, 2, 18, 1, Q("2.4 mm")),
    Sketcher.Constraint("DistanceX", 38, 1, 38, 2, Q("3.2 mm")),
    Sketcher.Constraint("DistanceX", 46, 1, 46, 2, Q("19.5 mm")),
    Sketcher.Constraint("DistanceY", 8, 1, 8, 2, Q("0.7 mm")),
    Sketcher.Constraint("DistanceY", 19, 2, 19, 1, Q("33.5 mm")),
    Sketcher.Constraint("DistanceY", 26, 2, 26, 1, Q("1.7 mm")),
    Sketcher.Constraint("DistanceY", 28, 1, 28, 2, Q("1.7 mm")),
    Sketcher.Constraint("DistanceY", 33, 2, 33, 1, Q("18.8 mm")),
    Sketcher.Constraint("DistanceY", 35, 1, 35, 2, Q("5.4 mm")),
    Sketcher.Constraint("DistanceY", 37, 1, 37, 2, Q("10.1 mm")),
    Sketcher.Constraint("DistanceY", 51, 2, 51, 1, Q("0.7 mm")),
    Sketcher.Constraint("DistanceX", 20, 1, 20, 2, Q("1.03 mm")),
    Sketcher.Constraint("DistanceY", 6, 2, 6, 1, Q("9.95 mm")),
    Sketcher.Constraint("DistanceY", 23, 2, 23, 1, Q("0.75 mm")),
    Sketcher.Constraint("DistanceX", 9, 1, 9, 2, Q("8.645898 mm")),
    Sketcher.Constraint("DistanceX", 11, 1, 11, 2, Q("1.645898 mm")),
    Sketcher.Constraint("DistanceX", 48, 2, 48, 1, Q("1.645898 mm")),
    Sketcher.Constraint("DistanceX", 50, 2, 50, 1, Q("6.145898 mm")),
    Sketcher.Constraint("DistanceX", 1, 1, 1, 2, Q("6.44595 mm")),
    Sketcher.Constraint("DistanceX", 22, 1, 22, 2, Q("21.503939 mm")),
    Sketcher.Constraint("DistanceX", 24, 1, 24, 2, Q("9.84595 mm")),
    Sketcher.Constraint("DistanceX", 25, 1, 25, 2, Q("2.377112 mm")),
    Sketcher.Constraint("DistanceX", 29, 1, 29, 2, Q("14.777112 mm")),
    Sketcher.Constraint("DistanceX", 32, 2, 32, 1, Q("13.97009 mm")),
    Sketcher.Constraint("DistanceX", 52, 2, 52, 1, Q("3.77009 mm")),
    Sketcher.Constraint("DistanceX", -1, 1, 30, 1, Q("16.616801 mm")),
    Sketcher.Constraint("DistanceY", -1, 1, 43, 2, Q("18.148201 mm")),
    Sketcher.Constraint("DistanceY", 39, 1, 39, 2, Q("0.984436 mm")),
    Sketcher.Constraint("DistanceY", 41, 2, 41, 1, Q("23.073477 mm")),
    Sketcher.Constraint("DistanceY", 43, 1, 43, 2, Q("25.369134 mm")),
    Sketcher.Constraint("DistanceY", 45, 2, 45, 1, Q("0.984436 mm")),
    Sketcher.Constraint("DistanceX", -1, 1, 9, 2, Q("35.33981 mm")),
    Sketcher.Constraint("DistanceY", -1, 1, 39, 2, Q("1.565621 mm")),
    Sketcher.Constraint("DistanceY", -1, 1, 44, 1, Q("1.565621 mm")),
    Sketcher.Constraint("DistanceX", -1, 1, 49, 1, Q("35.33981 mm")),
    Sketcher.Constraint("Distance", 14, Q("3.848376 mm")),
    Sketcher.Constraint("Distance", 16, Q("32.746603 mm")),
    Sketcher.Constraint("DistanceX", -1, 1, 0, 3, Q("23.193912 mm")),
    Sketcher.Constraint("DistanceY", -1, 1, 0, 3, Q("20.581186 mm")),
    Sketcher.Constraint("DistanceX", 21, 3, -1, 1, Q("13.676088 mm")),
    Sketcher.Constraint("DistanceY", -1, 1, 21, 3, Q("20.411186 mm")),
    Sketcher.Constraint("DistanceY", -1, 1, 30, 3, Q("29.081186 mm")),
    Sketcher.Constraint("DistanceX", 42, 3, -1, 1, Q("13.676088 mm")),
    Sketcher.Constraint("DistanceX", -1, 1, 10, 1, Q("42.048014 mm")),
    Sketcher.Constraint("DistanceX", -1, 1, 14, 2, Q("19.393912 mm")),
])
sketch2.setExpression("Constraints[98]", "Params.sketch2_radius")
sketch2.setExpression("Constraints[99]", "Params.sketch2_radius2")
sketch2.setExpression("Constraints[100]", "Params.sketch2_radius3")
sketch2.setExpression("Constraints[101]", "Params.sketch2_radius4")
sketch2.setExpression("Constraints[102]", "Params.sketch2_radius5")
pocket1 = body.newObject("PartDesign::Pocket", "Pocket")
pocket1.Profile = sketch2
pocket1.setExpression("Length", "Params.pocket1_length")
pocket1.Reversed = True

# Sketch on XY plane
sketch3 = body.newObject("Sketcher::SketchObject", "Sketch002")
sketch3.AttachmentSupport = (doc.getObject("XY_Plane"), [""])
sketch3.MapMode = "FlatFace"
sketch3.AttachmentOffset = App.Placement(App.Vector(0, 0, 6), App.Rotation())
sketch3.addGeometry([
    Part.LineSegment(App.Vector(-17, 57.6, 0), App.Vector(-17, 24.1, 0)),  # 0
    Part.LineSegment(App.Vector(-17, 24.1, 0), App.Vector(-14.7, 24.1, 0)),  # 1
    Part.LineSegment(App.Vector(-14.7, 24.1, 0), App.Vector(-14.7, 57.6, 0)),  # 2
    Part.LineSegment(App.Vector(-14.7, 57.6, 0), App.Vector(-17, 57.6, 0)),  # 3
    Part.LineSegment(App.Vector(43.7, 29.6, 0), App.Vector(43.7, 13.6, 0)),  # 4
    Part.LineSegment(App.Vector(43.7, 13.6, 0), App.Vector(45.7, 13.6, 0)),  # 5
    Part.LineSegment(App.Vector(45.7, 13.6, 0), App.Vector(45.7, 29.6, 0)),  # 6
    Part.LineSegment(App.Vector(45.7, 29.6, 0), App.Vector(43.7, 29.6, 0)),  # 7
], False)
sketch3.addConstraint([
    Sketcher.Constraint("Coincident", 0, 2, 1, 1),
    Sketcher.Constraint("Coincident", 1, 2, 2, 1),
    Sketcher.Constraint("Coincident", 2, 2, 3, 1),
    Sketcher.Constraint("Coincident", 3, 2, 0, 1),
    Sketcher.Constraint("Coincident", 4, 2, 5, 1),
    Sketcher.Constraint("Coincident", 5, 2, 6, 1),
    Sketcher.Constraint("Coincident", 6, 2, 7, 1),
    Sketcher.Constraint("Coincident", 7, 2, 4, 1),
    Sketcher.Constraint("Vertical", 0),
    Sketcher.Constraint("Horizontal", 1),
    Sketcher.Constraint("Vertical", 2),
    Sketcher.Constraint("Horizontal", 3),
    Sketcher.Constraint("Vertical", 4),
    Sketcher.Constraint("Horizontal", 5),
    Sketcher.Constraint("Vertical", 6),
    Sketcher.Constraint("Horizontal", 7),
    Sketcher.Constraint("DistanceX", 5, 1, 5, 2, Q("2 mm")),
    Sketcher.Constraint("DistanceY", 4, 2, 4, 1, Q("16 mm")),
    Sketcher.Constraint("DistanceX", 1, 1, 1, 2, Q("2.3 mm")),
    Sketcher.Constraint("DistanceY", 0, 2, 0, 1, Q("33.5 mm")),
    Sketcher.Constraint("DistanceY", 4, 2, 2, 2, Q("44 mm")),
    Sketcher.Constraint("DistanceX", 1, 2, 4, 2, Q("58.4 mm")),
    Sketcher.Constraint("DistanceX", 0, 2, -1, 1, Q("17.006088 mm")),
    Sketcher.Constraint("DistanceY", -1, 1, 0, 2, Q("24.081186 mm")),
])
sketch3.setExpression("Constraints[16]", "Params.sketch3_width")
sketch3.setExpression("Constraints[17]", "Params.sketch3_height")
sketch3.setExpression("Constraints[18]", "Params.sketch3_width2")
sketch3.setExpression("Constraints[19]", "Params.sketch3_height2")
pocket2 = body.newObject("PartDesign::Pocket", "Pocket001")
pocket2.Profile = sketch3
pocket2.Type = "ThroughAll"
pocket2.Reversed = True
doc.recompute()

fillet = body.newObject("PartDesign::Fillet", "Fillet")
fillet.Base = (pocket2, edges_at(pocket2, [(9.994, -9.519, 7.5)]))
fillet.setExpression("Radius", "Params.fillet_radius")

# Sketch on XZ plane
sketch4 = body.newObject("Sketcher::SketchObject", "Sketch003")
sketch4.AttachmentSupport = (doc.getObject("XZ_Plane"), [""])
sketch4.MapMode = "FlatFace"
sketch4.AttachmentOffset = App.Placement(App.Vector(0, 0, -20.581186), App.Rotation())
sketch4.addGeometry(Part.Circle(App.Vector(-2, 12, 0), App.Vector(0, 0, 1), 2.2), False)
sketch4.addConstraint([
    Sketcher.Constraint("Diameter", 0, Q("4.4 mm")),
    Sketcher.Constraint("DistanceY", -1, 1, 0, 3, Q("12 mm")),
    Sketcher.Constraint("DistanceX", 0, 3, -1, 1, Q("2.006088 mm")),
])
sketch4.setExpression("Constraints[0]", "Params.sketch4_diameter")
pocket3 = body.newObject("PartDesign::Pocket", "Pocket002")
pocket3.Profile = sketch4
pocket3.Type = "UpToFirst"
pocket3.Reversed = True

# Sketch on XZ plane
sketch5 = body.newObject("Sketcher::SketchObject", "Sketch004")
sketch5.AttachmentSupport = (doc.getObject("XZ_Plane"), [""])
sketch5.MapMode = "FlatFace"
sketch5.AttachmentOffset = App.Placement(App.Vector(0, 0, -28.531186), App.Rotation())
sketch5.addGeometry(Part.Circle(App.Vector(-2, 12, 0), App.Vector(0, 0, 1), 3.5), False)
sketch5.addConstraint([
    Sketcher.Constraint("Diameter", 0, Q("7 mm")),
    Sketcher.Constraint("DistanceX", 0, 3, -1, 1, Q("2.017786 mm")),
    Sketcher.Constraint("DistanceY", -1, 1, 0, 3, Q("12.014313 mm")),
])
sketch5.setExpression("Constraints[0]", "Params.sketch5_diameter")
pocket4 = body.newObject("PartDesign::Pocket", "Pocket003")
pocket4.Profile = sketch5
pocket4.setExpression("Length", "Params.pocket4_length")
pocket4.Reversed = True

# Sketch on XZ plane
sketch6 = body.newObject("Sketcher::SketchObject", "Sketch005")
sketch6.AttachmentSupport = (doc.getObject("XZ_Plane"), [""])
sketch6.MapMode = "FlatFace"
sketch6.AttachmentOffset = App.Placement(App.Vector(0, 0, -19.831186), App.Rotation())
sketch6.addGeometry(Part.Circle(App.Vector(15, 12, 0), App.Vector(0, 0, 1), 3.5), False)
sketch6.addConstraint([
    Sketcher.Constraint("Diameter", 0, Q("7 mm")),
    Sketcher.Constraint("DistanceY", -1, 1, 0, 3, Q("12 mm")),
    Sketcher.Constraint("DistanceX", -1, 1, 0, 3, Q("14.993912 mm")),
])
sketch6.setExpression("Constraints[0]", "Params.sketch6_diameter")
pocket5 = body.newObject("PartDesign::Pocket", "Pocket004")
pocket5.Profile = sketch6
pocket5.setExpression("Length", "Params.pocket5_length")
pocket5.Reversed = True

# Sketch on XY plane
sketch7 = body.newObject("Sketcher::SketchObject", "Sketch006")
sketch7.AttachmentSupport = (doc.getObject("XY_Plane"), [""])
sketch7.MapMode = "FlatFace"
sketch7.AttachmentOffset = App.Placement(App.Vector(0, 0, 3), App.Rotation())
sketch7.addGeometry([
    Part.LineSegment(App.Vector(-1.9, 32.1, 0), App.Vector(-1.9, 30.3, 0)),
    Part.LineSegment(App.Vector(-1.9, 30.3, 0), App.Vector(6.1, 30.3, 0)),
    Part.LineSegment(App.Vector(6.1, 30.3, 0), App.Vector(6.1, 32.1, 0)),
    Part.LineSegment(App.Vector(6.1, 32.1, 0), App.Vector(-1.9, 32.1, 0)),
], False)
sketch7.addConstraint([
    Sketcher.Constraint("Coincident", 0, 2, 1, 1),
    Sketcher.Constraint("Coincident", 1, 2, 2, 1),
    Sketcher.Constraint("Coincident", 2, 2, 3, 1),
    Sketcher.Constraint("Coincident", 3, 2, 0, 1),
    Sketcher.Constraint("Vertical", 0),
    Sketcher.Constraint("Horizontal", 1),
    Sketcher.Constraint("Vertical", 2),
    Sketcher.Constraint("Horizontal", 3),
    Sketcher.Constraint("DistanceY", 0, 2, 0, 1, Q("1.8 mm")),
    Sketcher.Constraint("DistanceX", 1, 1, 1, 2, Q("8.040924 mm")),
    Sketcher.Constraint("DistanceX", 0, 2, -1, 1, Q("1.942979 mm")),
    Sketcher.Constraint("DistanceY", -1, 1, 0, 2, Q("30.281186 mm")),
])
sketch7.setExpression("Constraints[8]", "Params.sketch7_height")
pocket6 = body.newObject("PartDesign::Pocket", "Pocket005")
pocket6.Profile = sketch7
pocket6.setExpression("Length", "Params.pocket6_length")

# Sketch on XY plane
sketch8 = body.newObject("Sketcher::SketchObject", "Sketch007")
sketch8.AttachmentSupport = (doc.getObject("XY_Plane"), [""])
sketch8.MapMode = "FlatFace"
sketch8.AttachmentOffset = App.Placement(App.Vector(0, 0, 2), App.Rotation())
sketch8.addGeometry([
    Part.LineSegment(App.Vector(2.5, 26.7, 0), App.Vector(2.5, 23.2, 0)),
    Part.LineSegment(App.Vector(2.5, 23.2, 0), App.Vector(26.7, 23.2, 0)),
    Part.LineSegment(App.Vector(26.7, 23.2, 0), App.Vector(26.7, 26.7, 0)),
    Part.LineSegment(App.Vector(26.7, 26.7, 0), App.Vector(2.5, 26.7, 0)),
], False)
sketch8.addConstraint([
    Sketcher.Constraint("Coincident", 0, 2, 1, 1),
    Sketcher.Constraint("Coincident", 1, 2, 2, 1),
    Sketcher.Constraint("Coincident", 2, 2, 3, 1),
    Sketcher.Constraint("Coincident", 3, 2, 0, 1),
    Sketcher.Constraint("Vertical", 0),
    Sketcher.Constraint("Horizontal", 1),
    Sketcher.Constraint("Vertical", 2),
    Sketcher.Constraint("Horizontal", 3),
    Sketcher.Constraint("DistanceY", 0, 2, 0, 1, Q("3.5 mm")),
    Sketcher.Constraint("DistanceX", 1, 1, 1, 2, Q("24.177828 mm")),
    Sketcher.Constraint("DistanceY", -1, 1, 0, 2, Q("23.242571 mm")),
    Sketcher.Constraint("DistanceX", -1, 1, 0, 2, Q("2.518778 mm")),
])
sketch8.setExpression("Constraints[8]", "Params.sketch8_height")
pocket7 = body.newObject("PartDesign::Pocket", "Pocket006")
pocket7.Profile = sketch8
pocket7.Type = "ThroughAll"
pocket7.Midplane = True

# Sketch on XZ plane
sketch9 = body.newObject("Sketcher::SketchObject", "Sketch008")
sketch9.AttachmentSupport = (doc.getObject("XZ_Plane"), [""])
sketch9.MapMode = "FlatFace"
sketch9.AttachmentOffset = App.Placement(App.Vector(0, 0, -5.881186), App.Rotation())
sketch9.addGeometry([
    Part.LineSegment(App.Vector(15, 7, 0), App.Vector(7, 7, 0)),
    Part.LineSegment(App.Vector(7, 7, 0), App.Vector(7, 12, 0)),
    Part.LineSegment(App.Vector(7, 12, 0), App.Vector(20, 12, 0)),
    Part.ArcOfCircle(Part.Circle(App.Vector(15, 12, 0), App.Vector(0, 0, 1), 5), math.radians(-90), math.radians(0)),
], False)
sketch9.addConstraint([
    Sketcher.Constraint("Coincident", 0, 2, 1, 1),
    Sketcher.Constraint("Coincident", 1, 2, 2, 1),
    Sketcher.Constraint("Coincident", 2, 2, 3, 2),
    Sketcher.Constraint("Tangent", 3, 1, 0, 1),
    Sketcher.Constraint("Horizontal", 0),
    Sketcher.Constraint("Vertical", 1),
    Sketcher.Constraint("Horizontal", 2),
    Sketcher.Constraint("Horizontal", 3, 3, 1, 2),
    Sketcher.Constraint("Radius", 3, Q("5 mm")),
    Sketcher.Constraint("DistanceX", 0, 2, 0, 1, Q("8 mm")),
    Sketcher.Constraint("DistanceY", -1, 1, 3, 3, Q("12 mm")),
    Sketcher.Constraint("DistanceX", -1, 1, 3, 3, Q("14.993912 mm")),
])
sketch9.setExpression("Constraints[8]", "Params.sketch9_radius")
sketch9.setExpression("Constraints[9]", "Params.sketch9_width")
pocket8 = body.newObject("PartDesign::Pocket", "Pocket007")
pocket8.Profile = sketch9
pocket8.Type = "UpToFirst"
pocket8.Reversed = True

# Sketch on XZ plane
sketch10 = body.newObject("Sketcher::SketchObject", "Sketch009")
sketch10.AttachmentSupport = (doc.getObject("XZ_Plane"), [""])
sketch10.MapMode = "FlatFace"
sketch10.AttachmentOffset = App.Placement(App.Vector(0, 0, -0.581186), App.Rotation())
sketch10.addGeometry(Part.Circle(App.Vector(30, 12, 0), App.Vector(0, 0, 1), 4), False)
sketch10.addConstraint([
    Sketcher.Constraint("Diameter", 0, Q("8 mm")),
    Sketcher.Constraint("DistanceY", -1, 1, 0, 3, Q("12 mm")),
    Sketcher.Constraint("DistanceX", -1, 1, 0, 3, Q("29.993912 mm")),
])
sketch10.setExpression("Constraints[0]", "Params.sketch10_diameter")
pocket9 = body.newObject("PartDesign::Pocket", "Pocket008")
pocket9.Profile = sketch10
pocket9.Type = "UpToFirst"
pocket9.Reversed = True

# Sketch on XZ plane
sketch11 = body.newObject("Sketcher::SketchObject", "Sketch010")
sketch11.AttachmentSupport = (doc.getObject("XZ_Plane"), [""])
sketch11.MapMode = "FlatFace"
sketch11.AttachmentOffset = App.Placement(App.Vector(0, 0, 1.418814), App.Rotation())
sketch11.addGeometry(Part.Circle(App.Vector(30, 12, 0), App.Vector(0, 0, 1), 12), False)
sketch11.addConstraint([
    Sketcher.Constraint("Diameter", 0, Q("24.2 mm")),
    Sketcher.Constraint("DistanceY", -1, 1, 0, 3, Q("12 mm")),
    Sketcher.Constraint("DistanceX", -1, 1, 0, 3, Q("29.993912 mm")),
])
sketch11.setExpression("Constraints[0]", "Params.sketch11_diameter")
pocket10 = body.newObject("PartDesign::Pocket", "Pocket009")
pocket10.Profile = sketch11
pocket10.Type = "ThroughAll"
pocket10.Reversed = True

# Sketch on XZ plane
sketch12 = body.newObject("Sketcher::SketchObject", "Sketch011")
sketch12.AttachmentSupport = (doc.getObject("XZ_Plane"), [""])
sketch12.MapMode = "FlatFace"
sketch12.AttachmentOffset = App.Placement(App.Vector(0, 0, -26.831186), App.Rotation())
sketch12.addGeometry(Part.Circle(App.Vector(15, 12, 0), App.Vector(0, 0, 1), 1.5), False)
sketch12.addConstraint([
    Sketcher.Constraint("Diameter", 0, Q("3 mm")),
    Sketcher.Constraint("DistanceY", -1, 1, 0, 3, Q("12 mm")),
    Sketcher.Constraint("DistanceX", -1, 1, 0, 3, Q("14.993912 mm")),
])
sketch12.setExpression("Constraints[0]", "Params.sketch12_diameter")
pocket11 = body.newObject("PartDesign::Pocket", "Pocket010")
pocket11.Profile = sketch12
pocket11.Type = "TwoLengths"
pocket11.setExpression("Length", "Params.pocket11_length")
pocket11.setExpression("Length2", "Params.pocket11_length2")
pocket11.Reversed = True

# Sketch on XZ plane
sketch13 = body.newObject("Sketcher::SketchObject", "Sketch012")
sketch13.AttachmentSupport = (doc.getObject("XZ_Plane"), [""])
sketch13.MapMode = "FlatFace"
sketch13.AttachmentOffset = App.Placement(App.Vector(0, 0, -17.831186), App.Rotation())
sketch13.addGeometry(Part.Circle(App.Vector(24, 12, 0), App.Vector(0, 0, 1), 1.5), False)
sketch13.addConstraint([
    Sketcher.Constraint("Diameter", 0, Q("3 mm")),
    Sketcher.Constraint("DistanceY", -1, 1, 0, 3, Q("12 mm")),
    Sketcher.Constraint("DistanceX", -1, 1, 0, 3, Q("23.993912 mm")),
])
sketch13.setExpression("Constraints[0]", "Params.sketch13_diameter")
pocket12 = body.newObject("PartDesign::Pocket", "Pocket011")
pocket12.Profile = sketch13
pocket12.Type = "TwoLengths"
pocket12.setExpression("Length", "Params.pocket12_length")
pocket12.setExpression("Length2", "Params.pocket12_length2")
pocket12.Reversed = True

# Sketch on XY plane
sketch14 = body.newObject("Sketcher::SketchObject", "Sketch013")
sketch14.AttachmentSupport = (doc.getObject("XY_Plane"), [""])
sketch14.MapMode = "FlatFace"
sketch14.AttachmentOffset = App.Placement(App.Vector(0, 0, 6), App.Rotation())
sketch14.addGeometry([
    Part.LineSegment(App.Vector(12.4, 33.1, 0), App.Vector(-12.3, 54.6, 0)),  # 0
    Part.LineSegment(App.Vector(-12.3, 54.6, 0), App.Vector(-12.3, 57.6, 0)),  # 1
    Part.LineSegment(App.Vector(-12.3, 57.6, 0), App.Vector(-17, 57.6, 0)),  # 2
    Part.LineSegment(App.Vector(-17, 57.6, 0), App.Vector(-17, 28.5, 0)),  # 3
    Part.LineSegment(App.Vector(-17, 28.5, 0), App.Vector(8.4, 28.5, 0)),  # 4
    Part.LineSegment(App.Vector(8.4, 28.5, 0), App.Vector(12.4, 33.1, 0)),  # 5
], False)
sketch14.addConstraint([
    Sketcher.Constraint("Coincident", 0, 2, 1, 1),
    Sketcher.Constraint("Coincident", 1, 2, 2, 1),
    Sketcher.Constraint("Coincident", 2, 2, 3, 1),
    Sketcher.Constraint("Coincident", 3, 2, 4, 1),
    Sketcher.Constraint("Coincident", 4, 2, 5, 1),
    Sketcher.Constraint("Coincident", 5, 2, 0, 1),
    Sketcher.Constraint("Vertical", 1),
    Sketcher.Constraint("Horizontal", 2),
    Sketcher.Constraint("Vertical", 3),
    Sketcher.Constraint("Horizontal", 4),
    Sketcher.Constraint("Perpendicular", 0, 5),
    Sketcher.Constraint("DistanceY", 1, 1, 1, 2, Q("3 mm")),
    Sketcher.Constraint("DistanceX", 2, 2, 2, 1, Q("4.7 mm")),
    Sketcher.Constraint("DistanceY", 3, 2, 3, 1, Q("29.05 mm")),
    Sketcher.Constraint("DistanceX", 3, 2, 5, 2, Q("29.4 mm")),
    Sketcher.Constraint("DistanceY", 5, 2, 0, 2, Q("21.5 mm")),
    Sketcher.Constraint("DistanceX", 0, 2, -1, 1, Q("12.306088 mm")),
    Sketcher.Constraint("DistanceY", -1, 1, 0, 2, Q("54.581186 mm")),
])
sketch14.setExpression("Constraints[11]", "Params.sketch14_height")
sketch14.setExpression("Constraints[12]", "Params.sketch14_width")
sketch14.setExpression("Constraints[13]", "Params.sketch14_height2")
pocket13 = body.newObject("PartDesign::Pocket", "Pocket012")
pocket13.Profile = sketch14
pocket13.setExpression("Length", "Params.pocket13_length")

doc.recompute()
